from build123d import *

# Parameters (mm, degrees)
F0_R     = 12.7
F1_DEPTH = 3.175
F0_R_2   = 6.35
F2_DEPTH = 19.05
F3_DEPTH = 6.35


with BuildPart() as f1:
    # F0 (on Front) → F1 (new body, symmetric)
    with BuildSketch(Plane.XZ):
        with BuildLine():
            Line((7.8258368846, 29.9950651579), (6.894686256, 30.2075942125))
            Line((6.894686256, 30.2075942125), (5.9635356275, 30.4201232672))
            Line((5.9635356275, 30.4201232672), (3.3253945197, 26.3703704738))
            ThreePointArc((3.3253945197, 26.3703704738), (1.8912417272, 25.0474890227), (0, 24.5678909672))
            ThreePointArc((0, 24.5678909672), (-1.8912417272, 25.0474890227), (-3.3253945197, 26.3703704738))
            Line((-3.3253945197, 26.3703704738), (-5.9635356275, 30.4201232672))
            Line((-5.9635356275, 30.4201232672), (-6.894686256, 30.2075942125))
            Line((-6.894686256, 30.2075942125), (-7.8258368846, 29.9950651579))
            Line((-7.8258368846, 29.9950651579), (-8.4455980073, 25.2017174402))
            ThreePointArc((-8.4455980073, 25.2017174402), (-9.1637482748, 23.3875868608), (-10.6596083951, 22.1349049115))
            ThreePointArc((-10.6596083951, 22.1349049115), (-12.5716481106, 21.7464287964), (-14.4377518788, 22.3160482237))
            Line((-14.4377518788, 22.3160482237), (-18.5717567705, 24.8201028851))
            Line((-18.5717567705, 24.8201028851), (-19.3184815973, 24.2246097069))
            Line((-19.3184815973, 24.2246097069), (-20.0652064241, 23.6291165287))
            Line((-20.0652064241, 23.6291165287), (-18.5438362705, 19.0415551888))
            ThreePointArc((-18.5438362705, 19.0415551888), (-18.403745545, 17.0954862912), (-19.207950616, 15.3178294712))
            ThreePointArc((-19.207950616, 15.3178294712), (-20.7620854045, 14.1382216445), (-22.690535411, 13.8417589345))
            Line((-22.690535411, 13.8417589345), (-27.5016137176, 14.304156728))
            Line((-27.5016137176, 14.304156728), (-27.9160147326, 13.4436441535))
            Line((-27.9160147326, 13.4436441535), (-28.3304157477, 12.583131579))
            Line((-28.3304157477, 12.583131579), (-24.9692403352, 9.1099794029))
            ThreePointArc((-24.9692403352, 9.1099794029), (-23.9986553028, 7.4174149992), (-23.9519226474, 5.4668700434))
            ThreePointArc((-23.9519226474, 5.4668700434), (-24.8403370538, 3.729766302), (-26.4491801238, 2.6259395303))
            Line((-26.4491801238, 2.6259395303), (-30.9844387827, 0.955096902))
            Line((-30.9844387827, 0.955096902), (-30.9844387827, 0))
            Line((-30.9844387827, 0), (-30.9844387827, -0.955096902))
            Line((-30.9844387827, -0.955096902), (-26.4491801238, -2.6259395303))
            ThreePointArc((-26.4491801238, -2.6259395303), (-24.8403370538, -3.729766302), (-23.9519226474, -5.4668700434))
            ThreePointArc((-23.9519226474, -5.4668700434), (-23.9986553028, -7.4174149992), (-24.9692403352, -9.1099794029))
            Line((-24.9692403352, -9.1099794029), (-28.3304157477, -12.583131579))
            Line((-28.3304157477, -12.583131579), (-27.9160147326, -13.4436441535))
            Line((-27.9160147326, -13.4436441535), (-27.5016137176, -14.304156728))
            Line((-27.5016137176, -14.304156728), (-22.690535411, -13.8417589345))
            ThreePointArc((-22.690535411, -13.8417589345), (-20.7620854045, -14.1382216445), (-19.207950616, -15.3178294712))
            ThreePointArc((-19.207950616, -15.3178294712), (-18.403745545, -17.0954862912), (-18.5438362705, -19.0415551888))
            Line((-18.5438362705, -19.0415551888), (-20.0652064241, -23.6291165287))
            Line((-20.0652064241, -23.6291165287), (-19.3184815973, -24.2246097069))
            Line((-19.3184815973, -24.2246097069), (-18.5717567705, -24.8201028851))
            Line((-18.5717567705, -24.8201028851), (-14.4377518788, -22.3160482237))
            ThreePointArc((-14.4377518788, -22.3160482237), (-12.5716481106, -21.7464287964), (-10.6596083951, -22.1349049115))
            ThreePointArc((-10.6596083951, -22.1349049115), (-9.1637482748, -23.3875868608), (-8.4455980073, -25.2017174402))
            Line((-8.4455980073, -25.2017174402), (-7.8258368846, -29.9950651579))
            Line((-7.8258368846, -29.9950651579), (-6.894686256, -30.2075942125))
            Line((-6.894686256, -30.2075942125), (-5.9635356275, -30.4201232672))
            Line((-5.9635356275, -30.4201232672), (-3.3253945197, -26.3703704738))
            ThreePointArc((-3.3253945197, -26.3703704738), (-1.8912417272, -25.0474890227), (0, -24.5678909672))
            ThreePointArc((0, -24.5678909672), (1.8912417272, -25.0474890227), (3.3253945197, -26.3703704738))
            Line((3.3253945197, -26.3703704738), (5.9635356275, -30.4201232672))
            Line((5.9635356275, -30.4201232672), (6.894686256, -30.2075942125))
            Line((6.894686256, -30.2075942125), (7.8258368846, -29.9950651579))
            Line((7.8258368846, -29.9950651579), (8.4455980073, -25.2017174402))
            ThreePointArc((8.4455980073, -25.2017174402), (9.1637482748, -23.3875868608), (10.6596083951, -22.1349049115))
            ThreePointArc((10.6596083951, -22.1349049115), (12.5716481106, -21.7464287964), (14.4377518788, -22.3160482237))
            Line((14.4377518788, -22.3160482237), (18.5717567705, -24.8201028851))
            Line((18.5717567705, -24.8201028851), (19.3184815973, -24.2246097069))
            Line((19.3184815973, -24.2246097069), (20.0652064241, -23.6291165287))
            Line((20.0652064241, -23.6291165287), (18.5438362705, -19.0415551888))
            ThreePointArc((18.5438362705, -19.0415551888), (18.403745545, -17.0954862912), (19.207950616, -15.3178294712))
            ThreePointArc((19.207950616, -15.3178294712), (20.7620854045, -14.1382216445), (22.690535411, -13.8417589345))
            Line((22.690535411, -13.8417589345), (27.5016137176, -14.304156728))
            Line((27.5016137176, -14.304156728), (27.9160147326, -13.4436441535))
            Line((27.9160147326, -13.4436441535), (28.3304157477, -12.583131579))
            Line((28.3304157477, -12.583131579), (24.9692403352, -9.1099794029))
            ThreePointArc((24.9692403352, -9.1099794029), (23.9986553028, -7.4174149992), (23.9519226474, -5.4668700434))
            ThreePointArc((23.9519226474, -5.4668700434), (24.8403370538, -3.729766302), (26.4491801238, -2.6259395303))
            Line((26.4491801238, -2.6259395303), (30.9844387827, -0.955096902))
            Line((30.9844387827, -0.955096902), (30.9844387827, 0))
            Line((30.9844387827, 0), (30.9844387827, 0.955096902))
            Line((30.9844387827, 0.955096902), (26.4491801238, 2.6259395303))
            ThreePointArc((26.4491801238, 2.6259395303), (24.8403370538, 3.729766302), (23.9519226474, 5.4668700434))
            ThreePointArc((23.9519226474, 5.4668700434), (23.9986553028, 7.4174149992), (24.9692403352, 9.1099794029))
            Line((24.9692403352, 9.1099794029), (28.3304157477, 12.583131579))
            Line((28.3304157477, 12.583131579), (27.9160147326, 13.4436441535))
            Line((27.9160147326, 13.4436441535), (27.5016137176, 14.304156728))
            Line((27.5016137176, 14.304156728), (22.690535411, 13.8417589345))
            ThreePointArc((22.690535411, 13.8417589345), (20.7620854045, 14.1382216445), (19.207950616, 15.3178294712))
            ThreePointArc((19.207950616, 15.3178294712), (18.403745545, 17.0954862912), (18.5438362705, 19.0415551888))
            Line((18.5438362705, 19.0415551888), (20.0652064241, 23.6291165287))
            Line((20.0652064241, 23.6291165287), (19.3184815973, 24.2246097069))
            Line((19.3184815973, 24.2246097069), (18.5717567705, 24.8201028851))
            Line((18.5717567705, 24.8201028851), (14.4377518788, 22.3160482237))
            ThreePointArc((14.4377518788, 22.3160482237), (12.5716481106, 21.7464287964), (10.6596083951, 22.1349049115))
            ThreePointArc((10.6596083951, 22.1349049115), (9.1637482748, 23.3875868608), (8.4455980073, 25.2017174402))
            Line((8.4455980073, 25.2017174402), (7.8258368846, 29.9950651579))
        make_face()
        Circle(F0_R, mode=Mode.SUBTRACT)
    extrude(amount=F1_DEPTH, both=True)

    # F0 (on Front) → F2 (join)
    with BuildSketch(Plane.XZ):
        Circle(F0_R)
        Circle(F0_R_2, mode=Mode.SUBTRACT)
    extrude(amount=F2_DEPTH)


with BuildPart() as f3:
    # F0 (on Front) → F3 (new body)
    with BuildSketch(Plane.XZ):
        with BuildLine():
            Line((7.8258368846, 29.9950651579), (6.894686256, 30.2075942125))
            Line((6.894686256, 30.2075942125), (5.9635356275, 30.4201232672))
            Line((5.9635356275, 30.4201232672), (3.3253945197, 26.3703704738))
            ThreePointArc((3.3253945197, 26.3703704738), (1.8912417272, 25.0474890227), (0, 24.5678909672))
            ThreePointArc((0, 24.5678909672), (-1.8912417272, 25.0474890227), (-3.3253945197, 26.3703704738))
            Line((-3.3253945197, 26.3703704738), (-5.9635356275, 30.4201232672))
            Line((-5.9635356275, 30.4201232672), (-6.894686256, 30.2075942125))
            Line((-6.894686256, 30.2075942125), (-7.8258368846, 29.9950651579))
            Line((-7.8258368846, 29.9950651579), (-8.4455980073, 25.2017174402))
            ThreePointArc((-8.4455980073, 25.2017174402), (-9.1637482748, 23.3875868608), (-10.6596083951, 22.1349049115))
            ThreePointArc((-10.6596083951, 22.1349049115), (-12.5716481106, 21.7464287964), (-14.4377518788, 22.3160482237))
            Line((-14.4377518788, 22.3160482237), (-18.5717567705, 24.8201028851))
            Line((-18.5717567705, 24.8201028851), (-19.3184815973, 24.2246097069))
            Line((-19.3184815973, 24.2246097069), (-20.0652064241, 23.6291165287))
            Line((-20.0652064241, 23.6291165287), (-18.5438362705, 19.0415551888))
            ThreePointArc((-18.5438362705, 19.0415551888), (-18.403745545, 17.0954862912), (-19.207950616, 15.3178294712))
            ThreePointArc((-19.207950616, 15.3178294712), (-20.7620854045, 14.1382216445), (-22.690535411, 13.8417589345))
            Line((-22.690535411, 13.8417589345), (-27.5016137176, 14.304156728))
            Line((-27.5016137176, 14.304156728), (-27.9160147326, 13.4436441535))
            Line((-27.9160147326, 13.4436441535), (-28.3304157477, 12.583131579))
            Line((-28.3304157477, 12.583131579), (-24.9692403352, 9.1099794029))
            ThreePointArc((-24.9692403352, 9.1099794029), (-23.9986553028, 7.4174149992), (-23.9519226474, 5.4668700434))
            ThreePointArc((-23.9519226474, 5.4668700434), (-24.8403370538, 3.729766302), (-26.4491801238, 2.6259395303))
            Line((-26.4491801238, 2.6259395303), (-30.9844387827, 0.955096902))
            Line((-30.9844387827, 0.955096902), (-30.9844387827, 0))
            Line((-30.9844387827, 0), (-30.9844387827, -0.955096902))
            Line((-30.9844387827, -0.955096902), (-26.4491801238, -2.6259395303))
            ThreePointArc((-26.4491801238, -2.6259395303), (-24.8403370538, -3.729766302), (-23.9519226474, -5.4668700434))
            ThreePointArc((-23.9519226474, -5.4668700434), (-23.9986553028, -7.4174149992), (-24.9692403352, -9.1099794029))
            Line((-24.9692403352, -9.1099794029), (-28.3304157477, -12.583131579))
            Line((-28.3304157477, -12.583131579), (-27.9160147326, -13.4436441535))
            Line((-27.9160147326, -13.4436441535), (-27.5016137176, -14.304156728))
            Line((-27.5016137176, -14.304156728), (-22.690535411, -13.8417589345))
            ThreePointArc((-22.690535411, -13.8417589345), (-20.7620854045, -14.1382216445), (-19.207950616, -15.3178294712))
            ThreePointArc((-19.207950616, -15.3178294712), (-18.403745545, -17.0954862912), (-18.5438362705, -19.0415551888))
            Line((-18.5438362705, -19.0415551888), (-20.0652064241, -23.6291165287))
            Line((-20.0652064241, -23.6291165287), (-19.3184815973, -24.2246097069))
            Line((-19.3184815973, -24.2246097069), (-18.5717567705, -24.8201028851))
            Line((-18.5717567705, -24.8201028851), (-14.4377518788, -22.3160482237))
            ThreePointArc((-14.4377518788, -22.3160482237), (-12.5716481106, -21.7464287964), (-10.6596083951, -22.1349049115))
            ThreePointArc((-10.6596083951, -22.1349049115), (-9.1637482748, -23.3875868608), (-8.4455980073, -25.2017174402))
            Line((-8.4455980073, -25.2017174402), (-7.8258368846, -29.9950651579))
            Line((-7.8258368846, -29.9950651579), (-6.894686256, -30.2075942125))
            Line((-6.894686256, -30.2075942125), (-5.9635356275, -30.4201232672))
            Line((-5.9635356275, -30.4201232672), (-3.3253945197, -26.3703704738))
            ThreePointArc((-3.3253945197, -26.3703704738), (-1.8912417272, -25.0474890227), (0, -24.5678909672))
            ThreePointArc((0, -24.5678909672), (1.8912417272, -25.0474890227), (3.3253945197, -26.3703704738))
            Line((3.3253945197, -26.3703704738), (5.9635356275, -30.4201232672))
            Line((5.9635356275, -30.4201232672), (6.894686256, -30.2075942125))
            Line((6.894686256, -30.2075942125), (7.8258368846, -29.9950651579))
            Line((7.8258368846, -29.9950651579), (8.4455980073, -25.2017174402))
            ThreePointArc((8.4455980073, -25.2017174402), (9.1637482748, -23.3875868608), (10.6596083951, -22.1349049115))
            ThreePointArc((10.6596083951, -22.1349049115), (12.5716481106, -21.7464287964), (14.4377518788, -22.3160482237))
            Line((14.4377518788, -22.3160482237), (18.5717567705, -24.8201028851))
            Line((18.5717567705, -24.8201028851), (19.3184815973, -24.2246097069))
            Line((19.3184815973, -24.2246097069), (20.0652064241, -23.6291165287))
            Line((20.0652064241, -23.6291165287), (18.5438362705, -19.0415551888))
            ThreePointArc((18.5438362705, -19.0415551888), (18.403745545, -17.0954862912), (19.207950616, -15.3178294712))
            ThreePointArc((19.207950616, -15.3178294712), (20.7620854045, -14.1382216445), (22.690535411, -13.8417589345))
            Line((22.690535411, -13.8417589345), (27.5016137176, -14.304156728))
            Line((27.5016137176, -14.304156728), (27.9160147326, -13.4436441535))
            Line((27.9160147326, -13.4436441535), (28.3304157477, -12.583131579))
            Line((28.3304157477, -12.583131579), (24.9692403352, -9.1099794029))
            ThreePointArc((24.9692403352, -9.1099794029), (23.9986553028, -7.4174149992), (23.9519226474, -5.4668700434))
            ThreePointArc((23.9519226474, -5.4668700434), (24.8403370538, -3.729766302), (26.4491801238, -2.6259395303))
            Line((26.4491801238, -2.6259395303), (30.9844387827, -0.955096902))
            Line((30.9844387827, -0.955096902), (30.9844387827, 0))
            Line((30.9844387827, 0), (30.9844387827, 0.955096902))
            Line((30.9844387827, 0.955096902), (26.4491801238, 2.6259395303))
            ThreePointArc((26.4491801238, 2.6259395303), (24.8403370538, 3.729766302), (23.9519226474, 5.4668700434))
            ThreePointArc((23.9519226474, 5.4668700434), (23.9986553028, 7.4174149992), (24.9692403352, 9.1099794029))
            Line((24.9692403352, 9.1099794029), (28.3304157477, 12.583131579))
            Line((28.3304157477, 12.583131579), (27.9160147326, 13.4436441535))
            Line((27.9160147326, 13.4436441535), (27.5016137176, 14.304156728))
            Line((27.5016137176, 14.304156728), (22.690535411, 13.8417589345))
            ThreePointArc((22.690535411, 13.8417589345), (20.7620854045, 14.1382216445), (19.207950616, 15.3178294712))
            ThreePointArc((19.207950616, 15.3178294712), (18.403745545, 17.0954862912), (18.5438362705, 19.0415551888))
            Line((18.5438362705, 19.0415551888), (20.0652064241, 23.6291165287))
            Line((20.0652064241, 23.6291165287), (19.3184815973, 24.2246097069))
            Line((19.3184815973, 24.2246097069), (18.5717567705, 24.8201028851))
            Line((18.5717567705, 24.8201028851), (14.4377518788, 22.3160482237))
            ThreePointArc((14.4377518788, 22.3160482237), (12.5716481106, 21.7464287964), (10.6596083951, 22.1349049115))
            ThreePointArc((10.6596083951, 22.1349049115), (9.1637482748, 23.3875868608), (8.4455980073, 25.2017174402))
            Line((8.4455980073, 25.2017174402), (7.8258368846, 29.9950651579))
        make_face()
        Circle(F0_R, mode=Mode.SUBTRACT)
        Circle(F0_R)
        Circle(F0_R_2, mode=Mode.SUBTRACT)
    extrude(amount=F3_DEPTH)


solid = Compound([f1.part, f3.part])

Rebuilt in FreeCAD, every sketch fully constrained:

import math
import FreeCAD as App
import Part
import Sketcher

V = App.Vector
Q = App.Units.Quantity

doc = App.newDocument("Part")
body = doc.addObject("PartDesign::Body", "Body")

# Sketch on XZ plane
sketch1 = body.newObject("Sketcher::SketchObject", "Sketch")
sketch1.AttachmentSupport = (doc.getObject("XZ_Plane"), [""])
sketch1.MapMode = "FlatFace"
sketch1.addGeometry([
    Part.LineSegment(V(7.8, 30, 0), V(6.9, 30.2, 0)),  # 0
    Part.LineSegment(V(6.9, 30.2, 0), V(6, 30.4, 0)),  # 1
    Part.LineSegment(V(6, 30.4, 0), V(3.3, 26.4, 0)),  # 2
    Part.ArcOfCircle(Part.Circle(V(0, 28.5, 0), V(0, 0, 1), 4), math.radians(-90), math.radians(-33)),  # 3
    Part.ArcOfCircle(Part.Circle(V(0, 28.5, 0), V(0, 0, 1), 4), math.radians(-147), math.radians(-90)),  # 4
    Part.LineSegment(V(-3.3, 26.4, 0), V(-6, 30.4, 0)),  # 5
    Part.LineSegment(V(-6, 30.4, 0), V(-6.9, 30.2, 0)),  # 6
    Part.LineSegment(V(-6.9, 30.2, 0), V(-7.8, 30, 0)),  # 7
    Part.LineSegment(V(-7.8, 30, 0), V(-8.4, 25.2, 0)),  # 8
    Part.ArcOfCircle(Part.Circle(V(-12.4, 25.7, 0), V(0, 0, 1), 4), math.radians(-64), math.radians(-7)),  # 9
    Part.ArcOfCircle(Part.Circle(V(-12.4, 25.7, 0), V(0, 0, 1), 4), math.radians(-121), math.radians(-64)),  # 10
    Part.LineSegment(V(-14.4, 22.3, 0), V(-18.6, 24.8, 0)),  # 11
    Part.LineSegment(V(-18.6, 24.8, 0), V(-20.1, 23.6, 0)),  # 12
    Part.LineSegment(V(-20.1, 23.6, 0), V(-18.5, 19, 0)),  # 13
    Part.ArcOfCircle(Part.Circle(V(-22.3, 17.8, 0), V(0, 0, 1), 4), math.radians(-39), math.radians(18)),  # 14
    Part.ArcOfCircle(Part.Circle(V(-22.3, 17.8, 0), V(0, 0, 1), 4), math.radians(-95), math.radians(-39)),  # 15
    Part.LineSegment(V(-22.7, 13.8, 0), V(-27.5, 14.3, 0)),  # 16
    Part.LineSegment(V(-27.5, 14.3, 0), V(-27.9, 13.4, 0)),  # 17
    Part.LineSegment(V(-27.9, 13.4, 0), V(-28.3, 12.6, 0)),  # 18
    Part.LineSegment(V(-28.3, 12.6, 0), V(-25, 9.1, 0)),  # 19
    Part.ArcOfCircle(Part.Circle(V(-27.8, 6.3, 0), V(0, 0, 1), 4), math.radians(-13), math.radians(44)),  # 20
    Part.ArcOfCircle(Part.Circle(V(-27.8, 6.3, 0), V(0, 0, 1), 4), math.radians(-70), math.radians(-13)),  # 21
    Part.LineSegment(V(-26.4, 2.6, 0), V(-31, 1, 0)),  # 22
    Part.LineSegment(V(-31, 1, 0), V(-31, -1, 0)),  # 23
    Part.LineSegment(V(-31, -1, 0), V(-26.4, -2.6, 0)),  # 24
    Part.ArcOfCircle(Part.Circle(V(-27.8, -6.3, 0), V(0, 0, 1), 4), math.radians(13), math.radians(70)),  # 25
    Part.ArcOfCircle(Part.Circle(V(-27.8, -6.3, 0), V(0, 0, 1), 4), math.radians(-44), math.radians(13)),  # 26
    Part.LineSegment(V(-25, -9.1, 0), V(-28.3, -12.6, 0)),  # 27
    Part.LineSegment(V(-28.3, -12.6, 0), V(-27.9, -13.4, 0)),  # 28
    Part.LineSegment(V(-27.9, -13.4, 0), V(-27.5, -14.3, 0)),  # 29
    Part.LineSegment(V(-27.5, -14.3, 0), V(-22.7, -13.8, 0)),  # 30
    Part.ArcOfCircle(Part.Circle(V(-22.3, -17.8, 0), V(0, 0, 1), 4), math.radians(39), math.radians(95)),  # 31
    Part.ArcOfCircle(Part.Circle(V(-22.3, -17.8, 0), V(0, 0, 1), 4), math.radians(-18), math.radians(39)),  # 32
    Part.LineSegment(V(-18.5, -19, 0), V(-20.1, -23.6, 0)),  # 33
    Part.LineSegment(V(-20.1, -23.6, 0), V(-18.6, -24.8, 0)),  # 34
    Part.LineSegment(V(-18.6, -24.8, 0), V(-14.4, -22.3, 0)),  # 35
    Part.ArcOfCircle(Part.Circle(V(-12.4, -25.7, 0), V(0, 0, 1), 4), math.radians(64), math.radians(121)),  # 36
    Part.ArcOfCircle(Part.Circle(V(-12.4, -25.7, 0), V(0, 0, 1), 4), math.radians(7), math.radians(64)),  # 37
    Part.LineSegment(V(-8.4, -25.2, 0), V(-7.8, -30, 0)),  # 38
    Part.LineSegment(V(-7.8, -30, 0), V(-6.9, -30.2, 0)),  # 39
    Part.LineSegment(V(-6.9, -30.2, 0), V(-6, -30.4, 0)),  # 40
    Part.LineSegment(V(-6, -30.4, 0), V(-3.3, -26.4, 0)),  # 41
    Part.ArcOfCircle(Part.Circle(V(0, -28.5, 0), V(0, 0, 1), 4), math.radians(90), math.radians(147)),  # 42
    Part.ArcOfCircle(Part.Circle(V(0, -28.5, 0), V(0, 0, 1), 4), math.radians(33), math.radians(90)),  # 43
    Part.LineSegment(V(3.3, -26.4, 0), V(6, -30.4, 0)),  # 44
    Part.LineSegment(V(6, -30.4, 0), V(6.9, -30.2, 0)),  # 45
    Part.LineSegment(V(6.9, -30.2, 0), V(7.8, -30, 0)),  # 46
    Part.LineSegment(V(7.8, -30, 0), V(8.4, -25.2, 0)),  # 47
    Part.ArcOfCircle(Part.Circle(V(12.4, -25.7, 0), V(0, 0, 1), 4), math.radians(116), math.radians(173)),  # 48
    Part.ArcOfCircle(Part.Circle(V(12.4, -25.7, 0), V(0, 0, 1), 4), math.radians(59), math.radians(116)),  # 49
    Part.LineSegment(V(14.4, -22.3, 0), V(18.6, -24.8, 0)),  # 50
    Part.LineSegment(V(18.6, -24.8, 0), V(20.1, -23.6, 0)),  # 51
    Part.LineSegment(V(20.1, -23.6, 0), V(18.5, -19, 0)),  # 52
    Part.ArcOfCircle(Part.Circle(V(22.3, -17.8, 0), V(0, 0, 1), 4), math.radians(141), math.radians(198)),  # 53
    Part.ArcOfCircle(Part.Circle(V(22.3, -17.8, 0), V(0, 0, 1), 4), math.radians(85), math.radians(141)),  # 54
    Part.LineSegment(V(22.7, -13.8, 0), V(27.5, -14.3, 0)),  # 55
    Part.LineSegment(V(27.5, -14.3, 0), V(27.9, -13.4, 0)),  # 56
    Part.LineSegment(V(27.9, -13.4, 0), V(28.3, -12.6, 0)),  # 57
    Part.LineSegment(V(28.3, -12.6, 0), V(25, -9.1, 0)),  # 58
    Part.ArcOfCircle(Part.Circle(V(27.8, -6.3, 0), V(0, 0, 1), 4), math.radians(167), math.radians(224)),  # 59
    Part.ArcOfCircle(Part.Circle(V(27.8, -6.3, 0), V(0, 0, 1), 4), math.radians(110), math.radians(167)),  # 60
    Part.LineSegment(V(26.4, -2.6, 0), V(31, -1, 0)),  # 61
    Part.LineSegment(V(31, -1, 0), V(31, 1, 0)),  # 62
    Part.LineSegment(V(31, 1, 0), V(26.4, 2.6, 0)),  # 63
    Part.ArcOfCircle(Part.Circle(V(27.8, 6.3, 0), V(0, 0, 1), 4), math.radians(-167), math.radians(-110)),  # 64
    Part.ArcOfCircle(Part.Circle(V(27.8, 6.3, 0), V(0, 0, 1), 4), math.radians(136), math.radians(193)),  # 65
    Part.LineSegment(V(25, 9.1, 0), V(28.3, 12.6, 0)),  # 66
    Part.LineSegment(V(28.3, 12.6, 0), V(27.9, 13.4, 0)),  # 67
    Part.LineSegment(V(27.9, 13.4, 0), V(27.5, 14.3, 0)),  # 68
    Part.LineSegment(V(27.5, 14.3, 0), V(22.7, 13.8, 0)),  # 69
    Part.ArcOfCircle(Part.Circle(V(22.3, 17.8, 0), V(0, 0, 1), 4), math.radians(-141), math.radians(-85)),  # 70
    Part.ArcOfCircle(Part.Circle(V(22.3, 17.8, 0), V(0, 0, 1), 4), math.radians(162), math.radians(219)),  # 71
    Part.LineSegment(V(18.5, 19, 0), V(20.1, 23.6, 0)),  # 72
    Part.LineSegment(V(20.1, 23.6, 0), V(18.6, 24.8, 0)),  # 73
    Part.LineSegment(V(18.6, 24.8, 0), V(14.4, 22.3, 0)),  # 74
    Part.ArcOfCircle(Part.Circle(V(12.4, 25.7, 0), V(0, 0, 1), 4), math.radians(-116), math.radians(-59)),  # 75
    Part.ArcOfCircle(Part.Circle(V(12.4, 25.7, 0), V(0, 0, 1), 4), math.radians(-173), math.radians(-116)),  # 76
    Part.LineSegment(V(8.4, 25.2, 0), V(7.8, 30, 0)),  # 77
    Part.Circle(V(0, 0, 0), V(0, 0, 1), 12.7),  # 78
], False)
sketch1.addConstraint([
    Sketcher.Constraint("Coincident", 0, 2, 1, 1),
    Sketcher.Constraint("Coincident", 1, 2, 2, 1),
    Sketcher.Constraint("Tangent", 2, 2, 3, 2),
    Sketcher.Constraint("Tangent", 3, 1, 4, 2),
    Sketcher.Constraint("Tangent", 4, 1, 5, 1),
    Sketcher.Constraint("Coincident", 5, 2, 6, 1),
    Sketcher.Constraint("Coincident", 6, 2, 7, 1),
    Sketcher.Constraint("Coincident", 7, 2, 8, 1),
    Sketcher.Constraint("Tangent", 8, 2, 9, 2),
    Sketcher.Constraint("Tangent", 9, 1, 10, 2),
    Sketcher.Constraint("Tangent", 10, 1, 11, 1),
    Sketcher.Constraint("Coincident", 11, 2, 12, 1),
    Sketcher.Constraint("Coincident", 12, 2, 13, 1),
    Sketcher.Constraint("Tangent", 13, 2, 14, 2),
    Sketcher.Constraint("Tangent", 14, 1, 15, 2),
    Sketcher.Constraint("Tangent", 15, 1, 16, 1),
    Sketcher.Constraint("Coincident", 16, 2, 17, 1),
    Sketcher.Constraint("Coincident", 17, 2, 18, 1),
    Sketcher.Constraint("Coincident", 18, 2, 19, 1),
    Sketcher.Constraint("Tangent", 19, 2, 20, 2),
    Sketcher.Constraint("Tangent", 20, 1, 21, 2),
    Sketcher.Constraint("Tangent", 21, 1, 22, 1),
    Sketcher.Constraint("Coincident", 22, 2, 23, 1),
    Sketcher.Constraint("Coincident", 23, 2, 24, 1),
    Sketcher.Constraint("Tangent", 24, 2, 25, 2),
    Sketcher.Constraint("Tangent", 25, 1, 26, 2),
    Sketcher.Constraint("Tangent", 26, 1, 27, 1),
    Sketcher.Constraint("Coincident", 27, 2, 28, 1),
    Sketcher.Constraint("Coincident", 28, 2, 29, 1),
    Sketcher.Constraint("Coincident", 29, 2, 30, 1),
    Sketcher.Constraint("Tangent", 30, 2, 31, 2),
    Sketcher.Constraint("Tangent", 31, 1, 32, 2),
    Sketcher.Constraint("Tangent", 32, 1, 33, 1),
    Sketcher.Constraint("Coincident", 33, 2, 34, 1),
    Sketcher.Constraint("Coincident", 34, 2, 35, 1),
    Sketcher.Constraint("Tangent", 35, 2, 36, 2),
    Sketcher.Constraint("Tangent", 36, 1, 37, 2),
    Sketcher.Constraint("Tangent", 37, 1, 38, 1),
    Sketcher.Constraint("Coincident", 38, 2, 39, 1),
    Sketcher.Constraint("Coincident", 39, 2, 40, 1),
    Sketcher.Constraint("Coincident", 40, 2, 41, 1),
    Sketcher.Constraint("Tangent", 41, 2, 42, 2),
    Sketcher.Constraint("Tangent", 42, 1, 43, 2),
    Sketcher.Constraint("Tangent", 43, 1, 44, 1),
    Sketcher.Constraint("Coincident", 44, 2, 45, 1),
    Sketcher.Constraint("Coincident", 45, 2, 46, 1),
    Sketcher.Constraint("Coincident", 46, 2, 47, 1),
    Sketcher.Constraint("Tangent", 47, 2, 48, 2),
    Sketcher.Constraint("Tangent", 48, 1, 49, 2),
    Sketcher.Constraint("Tangent", 49, 1, 50, 1),
    Sketcher.Constraint("Coincident", 50, 2, 51, 1),
    Sketcher.Constraint("Coincident", 51, 2, 52, 1),
    Sketcher.Constraint("Tangent", 52, 2, 53, 2),
    Sketcher.Constraint("Tangent", 53, 1, 54, 2),
    Sketcher.Constraint("Tangent", 54, 1, 55, 1),
    Sketcher.Constraint("Coincident", 55, 2, 56, 1),
    Sketcher.Constraint("Coincident", 56, 2, 57, 1),
    Sketcher.Constraint("Coincident", 57, 2, 58, 1),
    Sketcher.Constraint("Tangent", 58, 2, 59, 2),
    Sketcher.Constraint("Tangent", 59, 1, 60, 2),
    Sketcher.Constraint("Tangent", 60, 1, 61, 1),
    Sketcher.Constraint("Coincident", 61, 2, 62, 1),
    Sketcher.Constraint("Coincident", 62, 2, 63, 1),
    Sketcher.Constraint("Tangent", 63, 2, 64, 2),
    Sketcher.Constraint("Tangent", 64, 1, 65, 2),
    Sketcher.Constraint("Tangent", 65, 1, 66, 1),
    Sketcher.Constraint("Coincident", 66, 2, 67, 1),
    Sketcher.Constraint("Coincident", 67, 2, 68, 1),
    Sketcher.Constraint("Coincident", 68, 2, 69, 1),
    Sketcher.Constraint("Tangent", 69, 2, 70, 2),
    Sketcher.Constraint("Tangent", 70, 1, 71, 2),
    Sketcher.Constraint("Tangent", 71, 1, 72, 1),
    Sketcher.Constraint("Coincident", 72, 2, 73, 1),
    Sketcher.Constraint("Coincident", 73, 2, 74, 1),
    Sketcher.Constraint("Tangent", 74, 2, 75, 2),
    Sketcher.Constraint("Tangent", 75, 1, 76, 2),
    Sketcher.Constraint("Tangent", 76, 1, 77, 1),
    Sketcher.Constraint("Coincident", 77, 2, 0, 1),
    Sketcher.Constraint("Vertical", 23),
    Sketcher.Constraint("Vertical", 62),
    Sketcher.Constraint("Coincident", 78, 3, -1, 1),
    Sketcher.Constraint("Equal", 3, 4),
    Sketcher.Constraint("Equal", 4, 9),
    Sketcher.Constraint("Equal", 9, 10),
    Sketcher.Constraint("Equal", 10, 14),
    Sketcher.Constraint("Equal", 14, 15),
    Sketcher.Constraint("Equal", 15, 20),
    Sketcher.Constraint("Equal", 20, 21),
    Sketcher.Constraint("Equal", 21, 25),
    Sketcher.Constraint("Equal", 25, 26),
    Sketcher.Constraint("Equal", 26, 31),
    Sketcher.Constraint("Equal", 31, 32),
    Sketcher.Constraint("Equal", 32, 36),
    Sketcher.Constraint("Equal", 36, 37),
    Sketcher.Constraint("Equal", 37, 42),
    Sketcher.Constraint("Equal", 42, 43),
    Sketcher.Constraint("Equal", 43, 48),
    Sketcher.Constraint("Equal", 48, 49),
    Sketcher.Constraint("Equal", 49, 53),
    Sketcher.Constraint("Equal", 53, 54),
    Sketcher.Constraint("Equal", 54, 59),
    Sketcher.Constraint("Equal", 59, 60),
    Sketcher.Constraint("Equal", 60, 64),
    Sketcher.Constraint("Equal", 64, 65),
    Sketcher.Constraint("Equal", 65, 70),
    Sketcher.Constraint("Equal", 70, 71),
    Sketcher.Constraint("Equal", 71, 75),
    Sketcher.Constraint("Equal", 75, 76),
    Sketcher.Constraint("Symmetric", 3, 3, 42, 3, -1, 1),
    Sketcher.Constraint("Symmetric", 9, 3, 48, 3, -1, 1),
    Sketcher.Constraint("Symmetric", 14, 3, 53, 3, -1, 1),
    Sketcher.Constraint("Symmetric", 20, 3, 59, 3, -1, 1),
    Sketcher.Constraint("Symmetric", 25, 3, 64, 3, -1, 1),
    Sketcher.Constraint("Symmetric", 31, 3, 70, 3, -1, 1),
    Sketcher.Constraint("Symmetric", 36, 3, 75, 3, -1, 1),
    Sketcher.Constraint("Symmetric", 0, 2, 39, 2, -1, 1),
    Sketcher.Constraint("Symmetric", 1, 2, 40, 2, -1, 1),
    Sketcher.Constraint("Symmetric", 5, 2, 44, 2, -1, 1),
    Sketcher.Constraint("Symmetric", 6, 2, 45, 2, -1, 1),
    Sketcher.Constraint("Symmetric", 7, 2, 46, 2, -1, 1),
    Sketcher.Constraint("Symmetric", 11, 2, 50, 2, -1, 1),
    Sketcher.Constraint("Symmetric", 12, 2, 51, 2, -1, 1),
    Sketcher.Constraint("Symmetric", 16, 2, 55, 2, -1, 1),
    Sketcher.Constraint("Symmetric", 17, 2, 56, 2, -1, 1),
    Sketcher.Constraint("Symmetric", 18, 2, 57, 2, -1, 1),
    Sketcher.Constraint("Symmetric", 22, 2, 61, 2, -1, 1),
    Sketcher.Constraint("Symmetric", 27, 2, 66, 2, -1, 1),
    Sketcher.Constraint("Symmetric", 28, 2, 67, 2, -1, 1),
    Sketcher.Constraint("Symmetric", 29, 2, 68, 2, -1, 1),
    Sketcher.Constraint("Symmetric", 33, 2, 72, 2, -1, 1),
    Sketcher.Constraint("Symmetric", 34, 2, 73, 2, -1, 1),
    Sketcher.Constraint("Symmetric", 38, 2, 77, 2, -1, 1),
    Sketcher.Constraint("Symmetric", 36, 3, 48, 3, -2),
    Sketcher.Constraint("Symmetric", 31, 3, 53, 3, -2),
    Sketcher.Constraint("Symmetric", 25, 3, 59, 3, -2),
    Sketcher.Constraint("Symmetric", 2, 2, 4, 1, -2),
    Sketcher.Constraint("Symmetric", 0, 2, 6, 2, -2),
    Sketcher.Constraint("Symmetric", 38, 2, 46, 2, -2),
    Sketcher.Constraint("Symmetric", 34, 2, 50, 2, -2),
    Sketcher.Constraint("Symmetric", 33, 2, 51, 2, -2),
    Sketcher.Constraint("Symmetric", 29, 2, 55, 2, -2),
    Sketcher.Constraint("Symmetric", 28, 2, 56, 2, -2),
    Sketcher.Constraint("Symmetric", 27, 2, 57, 2, -2),
    Sketcher.Constraint("PointOnObject", 3, 1, -2),
    Sketcher.Constraint("PointOnObject", 42, 1, -2),
    Sketcher.Constraint("Parallel", 0, 1),
    Sketcher.Constraint("Parallel", 6, 7),
    Sketcher.Constraint("Parallel", 17, 18),
    Sketcher.Constraint("Parallel", 24, 63),
    Sketcher.Constraint("Horizontal", 36, 1, 48, 1),
    Sketcher.Constraint("Horizontal", 31, 1, 53, 1),
    Sketcher.Constraint("Horizontal", 25, 1, 59, 1),
    Sketcher.Constraint("Horizontal", 24, 2, 60, 1),
    Sketcher.Constraint("Horizontal", 20, 1, 64, 1),
    Sketcher.Constraint("Horizontal", 14, 1, 70, 1),
    Sketcher.Constraint("Horizontal", 9, 1, 75, 1),
    Sketcher.Constraint("Vertical", 20, 1, 25, 1),
    Sketcher.Constraint("Vertical", 14, 1, 31, 1),
    Sketcher.Constraint("Vertical", 9, 1, 36, 1),
    Sketcher.Constraint("Equal", 0, 1),
    Sketcher.Constraint("Equal", 5, 8),
    Sketcher.Constraint("Equal", 8, 11),
    Sketcher.Constraint("Equal", 11, 13),
    Sketcher.Constraint("Equal", 13, 16),
    Sketcher.Constraint("Equal", 7, 17),
    Sketcher.Constraint("Equal", 17, 18),
    Sketcher.Constraint("Equal", 16, 19),
    Sketcher.Constraint("Equal", 19, 22),
    Sketcher.Constraint("Diameter", 78, Q("1 in")),
    Sketcher.Constraint("Radius", 3, Q("0.15625 in")),
    Sketcher.Constraint("DistanceY", -1, 1, 20, 3, Q("0.25 in")),
    Sketcher.Constraint("DistanceX", 8, 2, -1, 1, 8.445598),
    Sketcher.Constraint("DistanceY", 23, 2, 23, 1, 1.910194),
    Sketcher.Constraint("DistanceY", -1, 1, 3, 3, 28.536641),
    Sketcher.Constraint("DistanceY", -1, 1, 2, 2, 26.37037),
    Sketcher.Constraint("DistanceX", 9, 1, -1, 1, 10.659608),
    Sketcher.Constraint("DistanceX", 10, 1, -1, 1, 14.437752),
    Sketcher.Constraint("DistanceY", -1, 1, 10, 1, 22.316048),
    Sketcher.Constraint("DistanceX", 14, 1, -1, 1, 19.207951),
    Sketcher.Constraint("DistanceY", -1, 1, 14, 1, 15.317829),
    Sketcher.Constraint("DistanceY", -1, 1, 15, 1, 13.841759),
    Sketcher.Constraint("DistanceY", -1, 1, 18, 2, 12.583132),
    Sketcher.Constraint("DistanceX", 19, 2, -1, 1, 24.96924),
    Sketcher.Constraint("DistanceY", -1, 1, 19, 2, 9.109979),
    Sketcher.Constraint("DistanceY", -1, 1, 20, 1, 5.46687),
    Sketcher.Constraint("Distance", 0, 0.955097),
    Sketcher.Constraint("Distance", 12, 1.910194),
])
pad1 = body.newObject("PartDesign::Pad", "Pad")
pad1.Profile = sketch1
pad1.Length = Q("0.25 in")
pad1.Midplane = True

# Sketch on XZ plane
sketch2 = body.newObject("Sketcher::SketchObject", "Sketch001")
sketch2.AttachmentSupport = (doc.getObject("XZ_Plane"), [""])
sketch2.MapMode = "FlatFace"
sketch2.addGeometry([
    Part.Circle(V(0, 0, 0), V(0, 0, 1), 13),
    Part.Circle(V(0, 0, 0), V(0, 0, 1), 6),
], False)
sketch2.addConstraint([
    Sketcher.Constraint("Coincident", 0, 3, -1, 1),
    Sketcher.Constraint("Coincident", 1, 3, -1, 1),
    Sketcher.Constraint("Diameter", 0, Q("1 in")),
    Sketcher.Constraint("Diameter", 1, Q("0.5 in")),
])
pad2 = body.newObject("PartDesign::Pad", "Pad001")
pad2.Profile = sketch2
pad2.Length = Q("0.75 in")
body2 = doc.addObject("PartDesign::Body", "Body001")

# Sketch on XZ plane
sketch3 = body2.newObject("Sketcher::SketchObject", "Sketch002")
sketch3.AttachmentSupport = (doc.getObject("XZ_Plane001"), [""])
sketch3.MapMode = "FlatFace"
sketch3.addGeometry([
    Part.LineSegment(V(7.8, 30, 0), V(6.9, 30.2, 0)),  # 0
    Part.LineSegment(V(6.9, 30.2, 0), V(6, 30.4, 0)),  # 1
    Part.LineSegment(V(6, 30.4, 0), V(3.3, 26.4, 0)),  # 2
    Part.ArcOfCircle(Part.Circle(V(0, 28.5, 0), V(0, 0, 1), 4), math.radians(-90), math.radians(-33)),  # 3
    Part.ArcOfCircle(Part.Circle(V(0, 28.5, 0), V(0, 0, 1), 4), math.radians(-147), math.radians(-90)),  # 4
    Part.LineSegment(V(-3.3, 26.4, 0), V(-6, 30.4, 0)),  # 5
    Part.LineSegment(V(-6, 30.4, 0), V(-6.9, 30.2, 0)),  # 6
    Part.LineSegment(V(-6.9, 30.2, 0), V(-7.8, 30, 0)),  # 7
    Part.LineSegment(V(-7.8, 30, 0), V(-8.4, 25.2, 0)),  # 8
    Part.ArcOfCircle(Part.Circle(V(-12.4, 25.7, 0), V(0, 0, 1), 4), math.radians(-64), math.radians(-7)),  # 9
    Part.ArcOfCircle(Part.Circle(V(-12.4, 25.7, 0), V(0, 0, 1), 4), math.radians(-121), math.radians(-64)),  # 10
    Part.LineSegment(V(-14.4, 22.3, 0), V(-18.6, 24.8, 0)),  # 11
    Part.LineSegment(V(-18.6, 24.8, 0), V(-20.1, 23.6, 0)),  # 12
    Part.LineSegment(V(-20.1, 23.6, 0), V(-18.5, 19, 0)),  # 13
    Part.ArcOfCircle(Part.Circle(V(-22.3, 17.8, 0), V(0, 0, 1), 4), math.radians(-39), math.radians(18)),  # 14
    Part.ArcOfCircle(Part.Circle(V(-22.3, 17.8, 0), V(0, 0, 1), 4), math.radians(-95), math.radians(-39)),  # 15
    Part.LineSegment(V(-22.7, 13.8, 0), V(-27.5, 14.3, 0)),  # 16
    Part.LineSegment(V(-27.5, 14.3, 0), V(-27.9, 13.4, 0)),  # 17
    Part.LineSegment(V(-27.9, 13.4, 0), V(-28.3, 12.6, 0)),  # 18
    Part.LineSegment(V(-28.3, 12.6, 0), V(-25, 9.1, 0)),  # 19
    Part.ArcOfCircle(Part.Circle(V(-27.8, 6.3, 0), V(0, 0, 1), 4), math.radians(-13), math.radians(44)),  # 20
    Part.ArcOfCircle(Part.Circle(V(-27.8, 6.3, 0), V(0, 0, 1), 4), math.radians(-70), math.radians(-13)),  # 21
    Part.LineSegment(V(-26.4, 2.6, 0), V(-31, 1, 0)),  # 22
    Part.LineSegment(V(-31, 1, 0), V(-31, -1, 0)),  # 23
    Part.LineSegment(V(-31, -1, 0), V(-26.4, -2.6, 0)),  # 24
    Part.ArcOfCircle(Part.Circle(V(-27.8, -6.3, 0), V(0, 0, 1), 4), math.radians(13), math.radians(70)),  # 25
    Part.ArcOfCircle(Part.Circle(V(-27.8, -6.3, 0), V(0, 0, 1), 4), math.radians(-44), math.radians(13)),  # 26
    Part.LineSegment(V(-25, -9.1, 0), V(-28.3, -12.6, 0)),  # 27
    Part.LineSegment(V(-28.3, -12.6, 0), V(-27.9, -13.4, 0)),  # 28
    Part.LineSegment(V(-27.9, -13.4, 0), V(-27.5, -14.3, 0)),  # 29
    Part.LineSegment(V(-27.5, -14.3, 0), V(-22.7, -13.8, 0)),  # 30
    Part.ArcOfCircle(Part.Circle(V(-22.3, -17.8, 0), V(0, 0, 1), 4), math.radians(39), math.radians(95)),  # 31
    Part.ArcOfCircle(Part.Circle(V(-22.3, -17.8, 0), V(0, 0, 1), 4), math.radians(-18), math.radians(39)),  # 32
    Part.LineSegment(V(-18.5, -19, 0), V(-20.1, -23.6, 0)),  # 33
    Part.LineSegment(V(-20.1, -23.6, 0), V(-18.6, -24.8, 0)),  # 34
    Part.LineSegment(V(-18.6, -24.8, 0), V(-14.4, -22.3, 0)),  # 35
    Part.ArcOfCircle(Part.Circle(V(-12.4, -25.7, 0), V(0, 0, 1), 4), math.radians(64), math.radians(121)),  # 36
    Part.ArcOfCircle(Part.Circle(V(-12.4, -25.7, 0), V(0, 0, 1), 4), math.radians(7), math.radians(64)),  # 37
    Part.LineSegment(V(-8.4, -25.2, 0), V(-7.8, -30, 0)),  # 38
    Part.LineSegment(V(-7.8, -30, 0), V(-6.9, -30.2, 0)),  # 39
    Part.LineSegment(V(-6.9, -30.2, 0), V(-6, -30.4, 0)),  # 40
    Part.LineSegment(V(-6, -30.4, 0), V(-3.3, -26.4, 0)),  # 41
    Part.ArcOfCircle(Part.Circle(V(0, -28.5, 0), V(0, 0, 1), 4), math.radians(90), math.radians(147)),  # 42
    Part.ArcOfCircle(Part.Circle(V(0, -28.5, 0), V(0, 0, 1), 4), math.radians(33), math.radians(90)),  # 43
    Part.LineSegment(V(3.3, -26.4, 0), V(6, -30.4, 0)),  # 44
    Part.LineSegment(V(6, -30.4, 0), V(6.9, -30.2, 0)),  # 45
    Part.LineSegment(V(6.9, -30.2, 0), V(7.8, -30, 0)),  # 46
    Part.LineSegment(V(7.8, -30, 0), V(8.4, -25.2, 0)),  # 47
    Part.ArcOfCircle(Part.Circle(V(12.4, -25.7, 0), V(0, 0, 1), 4), math.radians(116), math.radians(173)),  # 48
    Part.ArcOfCircle(Part.Circle(V(12.4, -25.7, 0), V(0, 0, 1), 4), math.radians(59), math.radians(116)),  # 49
    Part.LineSegment(V(14.4, -22.3, 0), V(18.6, -24.8, 0)),  # 50
    Part.LineSegment(V(18.6, -24.8, 0), V(20.1, -23.6, 0)),  # 51
    Part.LineSegment(V(20.1, -23.6, 0), V(18.5, -19, 0)),  # 52
    Part.ArcOfCircle(Part.Circle(V(22.3, -17.8, 0), V(0, 0, 1), 4), math.radians(141), math.radians(198)),  # 53
    Part.ArcOfCircle(Part.Circle(V(22.3, -17.8, 0), V(0, 0, 1), 4), math.radians(85), math.radians(141)),  # 54
    Part.LineSegment(V(22.7, -13.8, 0), V(27.5, -14.3, 0)),  # 55
    Part.LineSegment(V(27.5, -14.3, 0), V(27.9, -13.4, 0)),  # 56
    Part.LineSegment(V(27.9, -13.4, 0), V(28.3, -12.6, 0)),  # 57
    Part.LineSegment(V(28.3, -12.6, 0), V(25, -9.1, 0)),  # 58
    Part.ArcOfCircle(Part.Circle(V(27.8, -6.3, 0), V(0, 0, 1), 4), math.radians(167), math.radians(224)),  # 59
    Part.ArcOfCircle(Part.Circle(V(27.8, -6.3, 0), V(0, 0, 1), 4), math.radians(110), math.radians(167)),  # 60
    Part.LineSegment(V(26.4, -2.6, 0), V(31, -1, 0)),  # 61
    Part.LineSegment(V(31, -1, 0), V(31, 1, 0)),  # 62
    Part.LineSegment(V(31, 1, 0), V(26.4, 2.6, 0)),  # 63
    Part.ArcOfCircle(Part.Circle(V(27.8, 6.3, 0), V(0, 0, 1), 4), math.radians(-167), math.radians(-110)),  # 64
    Part.ArcOfCircle(Part.Circle(V(27.8, 6.3, 0), V(0, 0, 1), 4), math.radians(136), math.radians(193)),  # 65
    Part.LineSegment(V(25, 9.1, 0), V(28.3, 12.6, 0)),  # 66
    Part.LineSegment(V(28.3, 12.6, 0), V(27.9, 13.4, 0)),  # 67
    Part.LineSegment(V(27.9, 13.4, 0), V(27.5, 14.3, 0)),  # 68
    Part.LineSegment(V(27.5, 14.3, 0), V(22.7, 13.8, 0)),  # 69
    Part.ArcOfCircle(Part.Circle(V(22.3, 17.8, 0), V(0, 0, 1), 4), math.radians(-141), math.radians(-85)),  # 70
    Part.ArcOfCircle(Part.Circle(V(22.3, 17.8, 0), V(0, 0, 1), 4), math.radians(162), math.radians(219)),  # 71
    Part.LineSegment(V(18.5, 19, 0), V(20.1, 23.6, 0)),  # 72
    Part.LineSegment(V(20.1, 23.6, 0), V(18.6, 24.8, 0)),  # 73
    Part.LineSegment(V(18.6, 24.8, 0), V(14.4, 22.3, 0)),  # 74
    Part.ArcOfCircle(Part.Circle(V(12.4, 25.7, 0), V(0, 0, 1), 4), math.radians(-116), math.radians(-59)),  # 75
    Part.ArcOfCircle(Part.Circle(V(12.4, 25.7, 0), V(0, 0, 1), 4), math.radians(-173), math.radians(-116)),  # 76
    Part.LineSegment(V(8.4, 25.2, 0), V(7.8, 30, 0)),  # 77
    Part.Circle(V(0, 0, 0), V(0, 0, 1), 6.3),  # 78
], False)
sketch3.addConstraint([
    Sketcher.Constraint("Coincident", 0, 2, 1, 1),
    Sketcher.Constraint("Coincident", 1, 2, 2, 1),
    Sketcher.Constraint("Tangent", 2, 2, 3, 2),
    Sketcher.Constraint("Tangent", 3, 1, 4, 2),
    Sketcher.Constraint("Tangent", 4, 1, 5, 1),
    Sketcher.Constraint("Coincident", 5, 2, 6, 1),
    Sketcher.Constraint("Coincident", 6, 2, 7, 1),
    Sketcher.Constraint("Coincident", 7, 2, 8, 1),
    Sketcher.Constraint("Tangent", 8, 2, 9, 2),
    Sketcher.Constraint("Tangent", 9, 1, 10, 2),
    Sketcher.Constraint("Tangent", 10, 1, 11, 1),
    Sketcher.Constraint("Coincident", 11, 2, 12, 1),
    Sketcher.Constraint("Coincident", 12, 2, 13, 1),
    Sketcher.Constraint("Tangent", 13, 2, 14, 2),
    Sketcher.Constraint("Tangent", 14, 1, 15, 2),
    Sketcher.Constraint("Tangent", 15, 1, 16, 1),
    Sketcher.Constraint("Coincident", 16, 2, 17, 1),
    Sketcher.Constraint("Coincident", 17, 2, 18, 1),
    Sketcher.Constraint("Coincident", 18, 2, 19, 1),
    Sketcher.Constraint("Tangent", 19, 2, 20, 2),
    Sketcher.Constraint("Tangent", 20, 1, 21, 2),
    Sketcher.Constraint("Tangent", 21, 1, 22, 1),
    Sketcher.Constraint("Coincident", 22, 2, 23, 1),
    Sketcher.Constraint("Coincident", 23, 2, 24, 1),
    Sketcher.Constraint("Tangent", 24, 2, 25, 2),
    Sketcher.Constraint("Tangent", 25, 1, 26, 2),
    Sketcher.Constraint("Tangent", 26, 1, 27, 1),
    Sketcher.Constraint("Coincident", 27, 2, 28, 1),
    Sketcher.Constraint("Coincident", 28, 2, 29, 1),
    Sketcher.Constraint("Coincident", 29, 2, 30, 1),
    Sketcher.Constraint("Tangent", 30, 2, 31, 2),
    Sketcher.Constraint("Tangent", 31, 1, 32, 2),
    Sketcher.Constraint("Tangent", 32, 1, 33, 1),
    Sketcher.Constraint("Coincident", 33, 2, 34, 1),
    Sketcher.Constraint("Coincident", 34, 2, 35, 1),
    Sketcher.Constraint("Tangent", 35, 2, 36, 2),
    Sketcher.Constraint("Tangent", 36, 1, 37, 2),
    Sketcher.Constraint("Tangent", 37, 1, 38, 1),
    Sketcher.Constraint("Coincident", 38, 2, 39, 1),
    Sketcher.Constraint("Coincident", 39, 2, 40, 1),
    Sketcher.Constraint("Coincident", 40, 2, 41, 1),
    Sketcher.Constraint("Tangent", 41, 2, 42, 2),
    Sketcher.Constraint("Tangent", 42, 1, 43, 2),
    Sketcher.Constraint("Tangent", 43, 1, 44, 1),
    Sketcher.Constraint("Coincident", 44, 2, 45, 1),
    Sketcher.Constraint("Coincident", 45, 2, 46, 1),
    Sketcher.Constraint("Coincident", 46, 2, 47, 1),
    Sketcher.Constraint("Tangent", 47, 2, 48, 2),
    Sketcher.Constraint("Tangent", 48, 1, 49, 2),
    Sketcher.Constraint("Tangent", 49, 1, 50, 1),
    Sketcher.Constraint("Coincident", 50, 2, 51, 1),
    Sketcher.Constraint("Coincident", 51, 2, 52, 1),
    Sketcher.Constraint("Tangent", 52, 2, 53, 2),
    Sketcher.Constraint("Tangent", 53, 1, 54, 2),
    Sketcher.Constraint("Tangent", 54, 1, 55, 1),
    Sketcher.Constraint("Coincident", 55, 2, 56, 1),
    Sketcher.Constraint("Coincident", 56, 2, 57, 1),
    Sketcher.Constraint("Coincident", 57, 2, 58, 1),
    Sketcher.Constraint("Tangent", 58, 2, 59, 2),
    Sketcher.Constraint("Tangent", 59, 1, 60, 2),
    Sketcher.Constraint("Tangent", 60, 1, 61, 1),
    Sketcher.Constraint("Coincident", 61, 2, 62, 1),
    Sketcher.Constraint("Coincident", 62, 2, 63, 1),
    Sketcher.Constraint("Tangent", 63, 2, 64, 2),
    Sketcher.Constraint("Tangent", 64, 1, 65, 2),
    Sketcher.Constraint("Tangent", 65, 1, 66, 1),
    Sketcher.Constraint("Coincident", 66, 2, 67, 1),
    Sketcher.Constraint("Coincident", 67, 2, 68, 1),
    Sketcher.Constraint("Coincident", 68, 2, 69, 1),
    Sketcher.Constraint("Tangent", 69, 2, 70, 2),
    Sketcher.Constraint("Tangent", 70, 1, 71, 2),
    Sketcher.Constraint("Tangent", 71, 1, 72, 1),
    Sketcher.Constraint("Coincident", 72, 2, 73, 1),
    Sketcher.Constraint("Coincident", 73, 2, 74, 1),
    Sketcher.Constraint("Tangent", 74, 2, 75, 2),
    Sketcher.Constraint("Tangent", 75, 1, 76, 2),
    Sketcher.Constraint("Tangent", 76, 1, 77, 1),
    Sketcher.Constraint("Coincident", 77, 2, 0, 1),
    Sketcher.Constraint("Vertical", 23),
    Sketcher.Constraint("Vertical", 62),
    Sketcher.Constraint("Coincident", 78, 3, -1, 1),
    Sketcher.Constraint("Equal", 3, 4),
    Sketcher.Constraint("Equal", 4, 9),
    Sketcher.Constraint("Equal", 9, 10),
    Sketcher.Constraint("Equal", 10, 14),
    Sketcher.Constraint("Equal", 14, 15),
    Sketcher.Constraint("Equal", 15, 20),
    Sketcher.Constraint("Equal", 20, 21),
    Sketcher.Constraint("Equal", 21, 25),
    Sketcher.Constraint("Equal", 25, 26),
    Sketcher.Constraint("Equal", 26, 31),
    Sketcher.Constraint("Equal", 31, 32),
    Sketcher.Constraint("Equal", 32, 36),
    Sketcher.Constraint("Equal", 36, 37),
    Sketcher.Constraint("Equal", 37, 42),
    Sketcher.Constraint("Equal", 42, 43),
    Sketcher.Constraint("Equal", 43, 48),
    Sketcher.Constraint("Equal", 48, 49),
    Sketcher.Constraint("Equal", 49, 53),
    Sketcher.Constraint("Equal", 53, 54),
    Sketcher.Constraint("Equal", 54, 59),
    Sketcher.Constraint("Equal", 59, 60),
    Sketcher.Constraint("Equal", 60, 64),
    Sketcher.Constraint("Equal", 64, 65),
    Sketcher.Constraint("Equal", 65, 70),
    Sketcher.Constraint("Equal", 70, 71),
    Sketcher.Constraint("Equal", 71, 75),
    Sketcher.Constraint("Equal", 75, 76),
    Sketcher.Constraint("Symmetric", 3, 3, 42, 3, -1, 1),
    Sketcher.Constraint("Symmetric", 9, 3, 48, 3, -1, 1),
    Sketcher.Constraint("Symmetric", 14, 3, 53, 3, -1, 1),
    Sketcher.Constraint("Symmetric", 20, 3, 59, 3, -1, 1),
    Sketcher.Constraint("Symmetric", 25, 3, 64, 3, -1, 1),
    Sketcher.Constraint("Symmetric", 31, 3, 70, 3, -1, 1),
    Sketcher.Constraint("Symmetric", 36, 3, 75, 3, -1, 1),
    Sketcher.Constraint("Symmetric", 0, 2, 39, 2, -1, 1),
    Sketcher.Constraint("Symmetric", 1, 2, 40, 2, -1, 1),
    Sketcher.Constraint("Symmetric", 5, 2, 44, 2, -1, 1),
    Sketcher.Constraint("Symmetric", 6, 2, 45, 2, -1, 1),
    Sketcher.Constraint("Symmetric", 7, 2, 46, 2, -1, 1),
    Sketcher.Constraint("Symmetric", 11, 2, 50, 2, -1, 1),
    Sketcher.Constraint("Symmetric", 12, 2, 51, 2, -1, 1),
    Sketcher.Constraint("Symmetric", 16, 2, 55, 2, -1, 1),
    Sketcher.Constraint("Symmetric", 17, 2, 56, 2, -1, 1),
    Sketcher.Constraint("Symmetric", 18, 2, 57, 2, -1, 1),
    Sketcher.Constraint("Symmetric", 22, 2, 61, 2, -1, 1),
    Sketcher.Constraint("Symmetric", 27, 2, 66, 2, -1, 1),
    Sketcher.Constraint("Symmetric", 28, 2, 67, 2, -1, 1),
    Sketcher.Constraint("Symmetric", 29, 2, 68, 2, -1, 1),
    Sketcher.Constraint("Symmetric", 33, 2, 72, 2, -1, 1),
    Sketcher.Constraint("Symmetric", 34, 2, 73, 2, -1, 1),
    Sketcher.Constraint("Symmetric", 38, 2, 77, 2, -1, 1),
    Sketcher.Constraint("Symmetric", 36, 3, 48, 3, -2),
    Sketcher.Constraint("Symmetric", 31, 3, 53, 3, -2),
    Sketcher.Constraint("Symmetric", 25, 3, 59, 3, -2),
    Sketcher.Constraint("Symmetric", 2, 2, 4, 1, -2),
    Sketcher.Constraint("Symmetric", 0, 2, 6, 2, -2),
    Sketcher.Constraint("Symmetric", 38, 2, 46, 2, -2),
    Sketcher.Constraint("Symmetric", 34, 2, 50, 2, -2),
    Sketcher.Constraint("Symmetric", 33, 2, 51, 2, -2),
    Sketcher.Constraint("Symmetric", 29, 2, 55, 2, -2),
    Sketcher.Constraint("Symmetric", 28, 2, 56, 2, -2),
    Sketcher.Constraint("Symmetric", 27, 2, 57, 2, -2),
    Sketcher.Constraint("PointOnObject", 3, 1, -2),
    Sketcher.Constraint("PointOnObject", 42, 1, -2),
    Sketcher.Constraint("Parallel", 0, 1),
    Sketcher.Constraint("Parallel", 6, 7),
    Sketcher.Constraint("Parallel", 17, 18),
    Sketcher.Constraint("Parallel", 24, 63),
    Sketcher.Constraint("Horizontal", 36, 1, 48, 1),
    Sketcher.Constraint("Horizontal", 31, 1, 53, 1),
    Sketcher.Constraint("Horizontal", 25, 1, 59, 1),
    Sketcher.Constraint("Horizontal", 24, 2, 60, 1),
    Sketcher.Constraint("Horizontal", 20, 1, 64, 1),
    Sketcher.Constraint("Horizontal", 14, 1, 70, 1),
    Sketcher.Constraint("Horizontal", 9, 1, 75, 1),
    Sketcher.Constraint("Vertical", 20, 1, 25, 1),
    Sketcher.Constraint("Vertical", 14, 1, 31, 1),
    Sketcher.Constraint("Vertical", 9, 1, 36, 1),
    Sketcher.Constraint("Equal", 0, 1),
    Sketcher.Constraint("Equal", 5, 8),
    Sketcher.Constraint("Equal", 8, 11),
    Sketcher.Constraint("Equal", 11, 13),
    Sketcher.Constraint("Equal", 13, 16),
    Sketcher.Constraint("Equal", 7, 17),
    Sketcher.Constraint("Equal", 17, 18),
    Sketcher.Constraint("Equal", 16, 19),
    Sketcher.Constraint("Equal", 19, 22),
    Sketcher.Constraint("Diameter", 78, Q("0.5 in")),
    Sketcher.Constraint("Radius", 3, Q("0.15625 in")),
    Sketcher.Constraint("DistanceY", -1, 1, 20, 3, Q("0.25 in")),
    Sketcher.Constraint("DistanceX", 8, 2, -1, 1, 8.445598),
    Sketcher.Constraint("DistanceY", 23, 2, 23, 1, 1.910194),
    Sketcher.Constraint("DistanceY", -1, 1, 3, 3, 28.536641),
    Sketcher.Constraint("DistanceY", -1, 1, 2, 2, 26.37037),
    Sketcher.Constraint("DistanceX", 9, 1, -1, 1, 10.659608),
    Sketcher.Constraint("DistanceX", 10, 1, -1, 1, 14.437752),
    Sketcher.Constraint("DistanceY", -1, 1, 10, 1, 22.316048),
    Sketcher.Constraint("DistanceX", 14, 1, -1, 1, 19.207951),
    Sketcher.Constraint("DistanceY", -1, 1, 14, 1, 15.317829),
    Sketcher.Constraint("DistanceY", -1, 1, 15, 1, 13.841759),
    Sketcher.Constraint("DistanceY", -1, 1, 18, 2, 12.583132),
    Sketcher.Constraint("DistanceX", 19, 2, -1, 1, 24.96924),
    Sketcher.Constraint("DistanceY", -1, 1, 19, 2, 9.109979),
    Sketcher.Constraint("DistanceY", -1, 1, 20, 1, 5.46687),
    Sketcher.Constraint("Distance", 0, 0.955097),
    Sketcher.Constraint("Distance", 12, 1.910194),
])
pad3 = body2.newObject("PartDesign::Pad", "Pad002")
pad3.Profile = sketch3
pad3.Length = Q("0.25 in")

doc.recompute()
